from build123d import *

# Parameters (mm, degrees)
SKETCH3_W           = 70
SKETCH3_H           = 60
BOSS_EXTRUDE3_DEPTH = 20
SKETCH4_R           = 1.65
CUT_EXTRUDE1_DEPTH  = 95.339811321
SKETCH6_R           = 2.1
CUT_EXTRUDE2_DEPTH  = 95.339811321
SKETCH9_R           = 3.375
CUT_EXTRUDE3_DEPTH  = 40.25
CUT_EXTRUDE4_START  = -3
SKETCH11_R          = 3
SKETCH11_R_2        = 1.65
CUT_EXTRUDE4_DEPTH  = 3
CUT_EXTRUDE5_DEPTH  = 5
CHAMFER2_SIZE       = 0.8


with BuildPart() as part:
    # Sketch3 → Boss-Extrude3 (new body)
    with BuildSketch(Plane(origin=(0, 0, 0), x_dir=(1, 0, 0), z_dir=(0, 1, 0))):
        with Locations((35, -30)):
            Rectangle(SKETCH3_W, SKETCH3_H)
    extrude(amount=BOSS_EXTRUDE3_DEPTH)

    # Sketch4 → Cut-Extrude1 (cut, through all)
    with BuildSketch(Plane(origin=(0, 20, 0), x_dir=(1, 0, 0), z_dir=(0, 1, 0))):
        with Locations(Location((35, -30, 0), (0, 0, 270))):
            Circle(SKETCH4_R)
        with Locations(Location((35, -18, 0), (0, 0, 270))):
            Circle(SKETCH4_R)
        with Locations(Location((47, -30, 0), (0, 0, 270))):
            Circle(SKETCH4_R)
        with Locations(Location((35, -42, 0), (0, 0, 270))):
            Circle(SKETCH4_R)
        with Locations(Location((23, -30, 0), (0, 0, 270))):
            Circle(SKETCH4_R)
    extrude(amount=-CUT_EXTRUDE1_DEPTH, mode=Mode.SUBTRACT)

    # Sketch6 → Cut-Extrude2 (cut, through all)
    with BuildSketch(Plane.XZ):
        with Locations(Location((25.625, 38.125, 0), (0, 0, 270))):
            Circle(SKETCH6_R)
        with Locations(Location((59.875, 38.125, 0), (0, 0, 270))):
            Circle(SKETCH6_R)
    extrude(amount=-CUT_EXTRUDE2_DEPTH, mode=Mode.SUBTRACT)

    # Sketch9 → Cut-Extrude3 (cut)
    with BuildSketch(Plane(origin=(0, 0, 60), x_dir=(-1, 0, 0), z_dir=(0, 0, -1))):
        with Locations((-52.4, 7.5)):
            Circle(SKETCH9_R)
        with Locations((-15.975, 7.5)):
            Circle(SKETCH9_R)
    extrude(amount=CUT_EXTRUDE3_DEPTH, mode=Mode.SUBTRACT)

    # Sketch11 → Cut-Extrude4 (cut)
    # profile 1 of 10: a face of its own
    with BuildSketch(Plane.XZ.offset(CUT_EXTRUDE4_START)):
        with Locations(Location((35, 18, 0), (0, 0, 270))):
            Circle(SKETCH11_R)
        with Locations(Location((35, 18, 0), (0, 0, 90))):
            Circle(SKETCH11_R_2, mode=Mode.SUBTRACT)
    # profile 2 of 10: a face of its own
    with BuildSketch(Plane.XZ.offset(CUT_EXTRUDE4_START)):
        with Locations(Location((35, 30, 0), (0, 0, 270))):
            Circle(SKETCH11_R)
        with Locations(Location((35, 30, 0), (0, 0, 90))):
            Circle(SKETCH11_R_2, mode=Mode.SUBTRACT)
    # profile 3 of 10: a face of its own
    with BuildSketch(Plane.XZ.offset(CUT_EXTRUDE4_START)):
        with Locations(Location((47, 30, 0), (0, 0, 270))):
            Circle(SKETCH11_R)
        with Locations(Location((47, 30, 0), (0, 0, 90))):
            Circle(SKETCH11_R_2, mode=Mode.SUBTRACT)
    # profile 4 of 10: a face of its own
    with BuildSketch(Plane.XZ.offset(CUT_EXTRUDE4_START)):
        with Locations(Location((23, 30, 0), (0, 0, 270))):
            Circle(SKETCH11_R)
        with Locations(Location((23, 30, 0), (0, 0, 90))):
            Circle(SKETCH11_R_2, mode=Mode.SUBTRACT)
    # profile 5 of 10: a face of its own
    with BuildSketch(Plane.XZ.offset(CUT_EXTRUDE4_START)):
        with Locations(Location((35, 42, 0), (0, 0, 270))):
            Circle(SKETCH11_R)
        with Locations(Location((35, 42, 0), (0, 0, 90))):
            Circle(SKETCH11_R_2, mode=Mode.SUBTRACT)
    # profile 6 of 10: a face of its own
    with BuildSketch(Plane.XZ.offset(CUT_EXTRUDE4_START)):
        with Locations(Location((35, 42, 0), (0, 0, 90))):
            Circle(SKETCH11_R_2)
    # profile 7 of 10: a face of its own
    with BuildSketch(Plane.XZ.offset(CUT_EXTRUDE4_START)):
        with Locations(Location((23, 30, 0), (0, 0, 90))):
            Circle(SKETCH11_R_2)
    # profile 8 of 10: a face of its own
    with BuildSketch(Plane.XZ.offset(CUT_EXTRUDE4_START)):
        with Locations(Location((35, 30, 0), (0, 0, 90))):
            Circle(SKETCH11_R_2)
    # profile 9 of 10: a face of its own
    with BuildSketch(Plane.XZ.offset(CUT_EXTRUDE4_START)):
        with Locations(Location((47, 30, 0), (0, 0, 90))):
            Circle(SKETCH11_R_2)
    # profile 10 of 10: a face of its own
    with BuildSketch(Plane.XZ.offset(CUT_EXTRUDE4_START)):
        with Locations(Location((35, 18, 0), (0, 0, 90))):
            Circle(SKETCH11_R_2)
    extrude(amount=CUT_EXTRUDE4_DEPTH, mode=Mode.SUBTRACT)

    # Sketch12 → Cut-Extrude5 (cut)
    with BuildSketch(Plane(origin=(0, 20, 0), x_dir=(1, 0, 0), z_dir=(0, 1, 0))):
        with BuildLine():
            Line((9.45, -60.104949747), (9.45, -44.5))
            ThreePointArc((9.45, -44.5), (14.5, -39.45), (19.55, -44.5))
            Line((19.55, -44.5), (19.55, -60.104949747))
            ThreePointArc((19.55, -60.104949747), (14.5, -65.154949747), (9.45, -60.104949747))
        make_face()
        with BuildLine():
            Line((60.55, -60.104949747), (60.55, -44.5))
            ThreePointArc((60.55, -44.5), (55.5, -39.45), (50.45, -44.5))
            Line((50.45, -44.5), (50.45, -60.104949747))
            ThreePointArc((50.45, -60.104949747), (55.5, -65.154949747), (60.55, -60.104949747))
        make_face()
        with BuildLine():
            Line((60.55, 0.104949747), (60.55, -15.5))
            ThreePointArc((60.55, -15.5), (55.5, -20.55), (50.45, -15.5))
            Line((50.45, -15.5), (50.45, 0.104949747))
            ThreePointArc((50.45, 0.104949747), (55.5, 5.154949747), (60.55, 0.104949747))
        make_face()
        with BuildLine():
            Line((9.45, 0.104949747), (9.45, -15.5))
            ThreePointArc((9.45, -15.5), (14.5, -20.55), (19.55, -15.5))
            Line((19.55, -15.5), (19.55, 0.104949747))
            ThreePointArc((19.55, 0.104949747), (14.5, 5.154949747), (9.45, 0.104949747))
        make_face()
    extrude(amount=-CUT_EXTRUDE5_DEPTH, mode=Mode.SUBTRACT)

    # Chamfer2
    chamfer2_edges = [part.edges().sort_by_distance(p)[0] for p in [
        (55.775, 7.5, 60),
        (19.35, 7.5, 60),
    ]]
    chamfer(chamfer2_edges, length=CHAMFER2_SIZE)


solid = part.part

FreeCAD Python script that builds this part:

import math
import FreeCAD as App
import Part
import Sketcher

V = App.Vector
Q = App.Units.Quantity


def edges_at(feature, points):
    """Names of the edges that pass closest to the given points."""
    edges = feature.Shape.Edges
    near = lambda p: min(range(len(edges)), key=lambda i: edges[i].distToShape(Part.Vertex(*p))[0])
    return sorted({f"Edge{near(p) + 1}" for p in points})


def add_polygon(sketch, points):
    """Adds a closed chain of lines whose ends are joined by coincident constraints."""
    first, n = sketch.GeometryCount, len(points)
    for a, b in zip(points, points[1:] + points[:1]):
        sketch.addGeometry(Part.LineSegment(App.Vector(*a, 0), App.Vector(*b, 0)), False)
    for i in range(n):
        sketch.addConstraint(Sketcher.Constraint("Coincident", first + i, 2, first + (i + 1) % n, 1))

doc = App.newDocument("Part")
body = doc.addObject("PartDesign::Body", "Body")

# Sketch on XZ plane
sketch1 = doc.addObject("Sketcher::SketchObject", "Sketch")
body.addObject(sketch1)
sketch1.AttachmentSupport = (doc.XZ_Plane, [""])
sketch1.MapMode = "FlatFace"
add_polygon(sketch1, [(0, 0), (0, 60), (70, 60), (70, 0)])  # lines 0-3
sketch1.addConstraint([
    Sketcher.Constraint("Vertical", 0),
    Sketcher.Constraint("Horizontal", 1),
    Sketcher.Constraint("Vertical", 2),
    Sketcher.Constraint("Horizontal", 3),
    Sketcher.Constraint("Coincident", 3, 2, -1, 1),
    Sketcher.Constraint("DistanceX", 1, 1, 1, 2, Q("70 mm")),
    Sketcher.Constraint("DistanceY", 0, 1, 0, 2, Q("60 mm")),
])
pad1 = doc.addObject("PartDesign::Pad", "Pad")
body.addObject(pad1)
pad1.Profile = sketch1
pad1.Length = 20
pad1.Reversed = True

# Sketch on XZ plane
sketch2 = doc.addObject("Sketcher::SketchObject", "Sketch001")
body.addObject(sketch2)
sketch2.AttachmentSupport = (doc.XZ_Plane, [""])
sketch2.MapMode = "FlatFace"
sketch2.AttachmentOffset = App.Placement(V(0, 0, -20), App.Rotation())
sketch2.addGeometry([
    Part.Circle(V(35, 30, 0), V(0, 0, 1), 1.65),  # 0
    Part.Circle(V(35, 18, 0), V(0, 0, 1), 1.65),  # 1
    Part.Circle(V(47, 30, 0), V(0, 0, 1), 1.65),  # 2
    Part.Circle(V(35, 42, 0), V(0, 0, 1), 1.65),  # 3
    Part.Circle(V(23, 30, 0), V(0, 0, 1), 1.65),  # 4
], False)
sketch2.addConstraint([
    Sketcher.Constraint("Equal", 0, 1),
    Sketcher.Constraint("Equal", 1, 2),
    Sketcher.Constraint("Equal", 2, 3),
    Sketcher.Constraint("Equal", 3, 4),
    Sketcher.Constraint("Horizontal", 0, 3, 2, 3),
    Sketcher.Constraint("Horizontal", 2, 3, 4, 3),
    Sketcher.Constraint("Vertical", 0, 3, 1, 3),
    Sketcher.Constraint("Vertical", 1, 3, 3, 3),
    Sketcher.Constraint("Diameter", 0, Q("3.3 mm")),
    Sketcher.Constraint("DistanceX", -1, 1, 0, 3, Q("35 mm")),
    Sketcher.Constraint("DistanceY", -1, 1, 0, 3, Q("30 mm")),
    Sketcher.Constraint("DistanceY", -1, 1, 1, 3, Q("18 mm")),
    Sketcher.Constraint("DistanceX", -1, 1, 2, 3, Q("47 mm")),
    Sketcher.Constraint("DistanceY", -1, 1, 3, 3, Q("42 mm")),
    Sketcher.Constraint("DistanceX", -1, 1, 4, 3, Q("23 mm")),
])
pocket1 = doc.addObject("PartDesign::Pocket", "Pocket")
body.addObject(pocket1)
pocket1.Profile = sketch2
pocket1.Type = "ThroughAll"
pocket1.Reversed = True

# Sketch on XZ plane
sketch3 = doc.addObject("Sketcher::SketchObject", "Sketch002")
body.addObject(sketch3)
sketch3.AttachmentSupport = (doc.XZ_Plane, [""])
sketch3.MapMode = "FlatFace"
sketch3.addGeometry([
    Part.Circle(V(25.625, 38.125, 0), V(0, 0, 1), 2.1),
    Part.Circle(V(59.875, 38.125, 0), V(0, 0, 1), 2.1),
], False)
sketch3.addConstraint([
    Sketcher.Constraint("Equal", 0, 1),
    Sketcher.Constraint("Horizontal", 0, 3, 1, 3),
    Sketcher.Constraint("Diameter", 0, Q("4.2 mm")),
    Sketcher.Constraint("DistanceX", 0, 3, 1, 3, Q("34.25 mm")),
    Sketcher.Constraint("DistanceX", -1, 1, 0, 3, Q("25.625 mm")),
    Sketcher.Constraint("DistanceY", -1, 1, 0, 3, Q("38.125 mm")),
])
pocket2 = doc.addObject("PartDesign::Pocket", "Pocket001")
body.addObject(pocket2)
pocket2.Profile = sketch3
pocket2.Type = "ThroughAll"

# Sketch on XY plane
sketch4 = doc.addObject("Sketcher::SketchObject", "Sketch003")
body.addObject(sketch4)
sketch4.AttachmentSupport = (doc.XY_Plane, [""])
sketch4.MapMode = "FlatFace"
sketch4.AttachmentOffset = App.Placement(V(0, 0, 60), App.Rotation())
sketch4.addGeometry([
    Part.Circle(V(52.4, 7.5, 0), V(0, 0, 1), 3.375),
    Part.Circle(V(15.975, 7.5, 0), V(0, 0, 1), 3.375),
], False)
sketch4.addConstraint([
    Sketcher.Constraint("Equal", 0, 1),
    Sketcher.Constraint("Horizontal", 0, 3, 1, 3),
    Sketcher.Constraint("Diameter", 0, Q("6.75 mm")),
    Sketcher.Constraint("DistanceX", -1, 1, 0, 3, Q("52.4 mm")),
    Sketcher.Constraint("DistanceY", -1, 1, 0, 3, Q("7.5 mm")),
    Sketcher.Constraint("DistanceX", -1, 1, 1, 3, Q("15.975 mm")),
])
pocket3 = doc.addObject("PartDesign::Pocket", "Pocket002")
body.addObject(pocket3)
pocket3.Profile = sketch4
pocket3.Length = 40.25

# Sketch on XZ plane
sketch5 = doc.addObject("Sketcher::SketchObject", "Sketch004")
body.addObject(sketch5)
sketch5.AttachmentSupport = (doc.XZ_Plane, [""])
sketch5.MapMode = "FlatFace"
sketch5.AttachmentOffset = App.Placement(V(0, 0, -3), App.Rotation())
sketch5.addGeometry([
    Part.Circle(V(35, 18, 0), V(0, 0, 1), 3),  # 0
    Part.Circle(V(35, 30, 0), V(0, 0, 1), 3),  # 1
    Part.Circle(V(47, 30, 0), V(0, 0, 1), 3),  # 2
    Part.Circle(V(23, 30, 0), V(0, 0, 1), 3),  # 3
    Part.Circle(V(35, 42, 0), V(0, 0, 1), 3),  # 4
], False)
sketch5.addConstraint([
    Sketcher.Constraint("Equal", 0, 1),
    Sketcher.Constraint("Equal", 1, 2),
    Sketcher.Constraint("Equal", 2, 3),
    Sketcher.Constraint("Equal", 3, 4),
    Sketcher.Constraint("Horizontal", 1, 3, 2, 3),
    Sketcher.Constraint("Horizontal", 2, 3, 3, 3),
    Sketcher.Constraint("Vertical", 0, 3, 1, 3),
    Sketcher.Constraint("Vertical", 1, 3, 4, 3),
    Sketcher.Constraint("Diameter", 0, Q("6 mm")),
    Sketcher.Constraint("DistanceX", -1, 1, 0, 3, Q("35 mm")),
    Sketcher.Constraint("DistanceY", -1, 1, 0, 3, Q("18 mm")),
    Sketcher.Constraint("DistanceY", -1, 1, 1, 3, Q("30 mm")),
    Sketcher.Constraint("DistanceX", -1, 1, 2, 3, Q("47 mm")),
    Sketcher.Constraint("DistanceX", -1, 1, 3, 3, Q("23 mm")),
    Sketcher.Constraint("DistanceY", -1, 1, 4, 3, Q("42 mm")),
])
pocket4 = doc.addObject("PartDesign::Pocket", "Pocket003")
body.addObject(pocket4)
pocket4.Profile = sketch5
pocket4.Length = 3
pocket4.Reversed = True

# Sketch on XZ plane
sketch6 = doc.addObject("Sketcher::SketchObject", "Sketch005")
body.addObject(sketch6)
sketch6.AttachmentSupport = (doc.XZ_Plane, [""])
sketch6.MapMode = "FlatFace"
sketch6.AttachmentOffset = App.Placement(V(0, 0, -20), App.Rotation())
sketch6.addGeometry([
    Part.LineSegment(V(9.45, 44.5, 0), V(9.45, 60.10495, 0)),  # 0
    Part.ArcOfCircle(Part.Circle(V(14.5, 60.10495, 0), V(0, 0, 1), 5.05), math.radians(0), math.radians(180)),  # 1
    Part.LineSegment(V(19.55, 60.10495, 0), V(19.55, 44.5, 0)),  # 2
    Part.ArcOfCircle(Part.Circle(V(14.5, 44.5, 0), V(0, 0, 1), 5.05), math.radians(180), math.radians(360)),  # 3
    Part.LineSegment(V(60.55, 60.10495, 0), V(60.55, 44.5, 0)),  # 4
    Part.ArcOfCircle(Part.Circle(V(55.5, 44.5, 0), V(0, 0, 1), 5.05), math.radians(180), math.radians(360)),  # 5
    Part.LineSegment(V(50.45, 44.5, 0), V(50.45, 60.10495, 0)),  # 6
    Part.ArcOfCircle(Part.Circle(V(55.5, 60.10495, 0), V(0, 0, 1), 5.05), math.radians(0), math.radians(180)),  # 7
    Part.LineSegment(V(60.55, 15.5, 0), V(60.55, -0.10495, 0)),  # 8
    Part.ArcOfCircle(Part.Circle(V(55.5, -0.10495, 0), V(0, 0, 1), 5.05), math.radians(180), math.radians(360)),  # 9
    Part.LineSegment(V(50.45, -0.10495, 0), V(50.45, 15.5, 0)),  # 10
    Part.ArcOfCircle(Part.Circle(V(55.5, 15.5, 0), V(0, 0, 1), 5.05), math.radians(0), math.radians(180)),  # 11
    Part.LineSegment(V(9.45, -0.10495, 0), V(9.45, 15.5, 0)),  # 12
    Part.ArcOfCircle(Part.Circle(V(14.5, 15.5, 0), V(0, 0, 1), 5.05), math.radians(0), math.radians(180)),  # 13
    Part.LineSegment(V(19.55, 15.5, 0), V(19.55, -0.10495, 0)),  # 14
    Part.ArcOfCircle(Part.Circle(V(14.5, -0.10495, 0), V(0, 0, 1), 5.05), math.radians(180), math.radians(360)),  # 15
], False)
sketch6.addConstraint([
    Sketcher.Constraint("Tangent", 0, 2, 1, 2),
    Sketcher.Constraint("Tangent", 1, 1, 2, 1),
    Sketcher.Constraint("Tangent", 2, 2, 3, 2),
    Sketcher.Constraint("Tangent", 3, 1, 0, 1),
    Sketcher.Constraint("Tangent", 4, 2, 5, 2),
    Sketcher.Constraint("Tangent", 5, 1, 6, 1),
    Sketcher.Constraint("Tangent", 6, 2, 7, 2),
    Sketcher.Constraint("Tangent", 7, 1, 4, 1),
    Sketcher.Constraint("Tangent", 8, 2, 9, 2),
    Sketcher.Constraint("Tangent", 9, 1, 10, 1),
    Sketcher.Constraint("Tangent", 10, 2, 11, 2),
    Sketcher.Constraint("Tangent", 11, 1, 8, 1),
    Sketcher.Constraint("Tangent", 12, 2, 13, 2),
    Sketcher.Constraint("Tangent", 13, 1, 14, 1),
    Sketcher.Constraint("Tangent", 14, 2, 15, 2),
    Sketcher.Constraint("Tangent", 15, 1, 12, 1),
    Sketcher.Constraint("Vertical", 0),
    Sketcher.Constraint("Vertical", 2),
    Sketcher.Constraint("Vertical", 4),
    Sketcher.Constraint("Vertical", 6),
    Sketcher.Constraint("Vertical", 8),
    Sketcher.Constraint("Vertical", 10),
    Sketcher.Constraint("Vertical", 12),
    Sketcher.Constraint("Vertical", 14),
    Sketcher.Constraint("Equal", 3, 5),
    Sketcher.Constraint("Equal", 7, 9),
    Sketcher.Constraint("Equal", 11, 13),
    Sketcher.Constraint("Horizontal", 3, 3, 5, 3),
    Sketcher.Constraint("Horizontal", 1, 3, 7, 3),
    Sketcher.Constraint("Horizontal", 11, 3, 13, 3),
    Sketcher.Constraint("Horizontal", 9, 3, 15, 3),
    Sketcher.Constraint("Vertical", 7, 3, 9, 3),
    Sketcher.Constraint("Vertical", 3, 3, 13, 3),
    Sketcher.Constraint("Equal", 6, 8),
    Sketcher.Constraint("Radius", 1, Q("5.05 mm")),
    Sketcher.Constraint("DistanceX", 3, 3, 5, 3, Q("41 mm")),
    Sketcher.Constraint("DistanceY", 11, 3, 5, 3, Q("29 mm")),
    Sketcher.Constraint("DistanceX", -1, 1, 1, 3, Q("14.5 mm")),
    Sketcher.Constraint("DistanceY", -1, 1, 3, 3, Q("44.5 mm")),
    Sketcher.Constraint("DistanceY", 0, 1, 0, 2, Q("15.60495 mm")),
])
pocket5 = doc.addObject("PartDesign::Pocket", "Pocket004")
body.addObject(pocket5)
pocket5.Profile = sketch6
pocket5.Length = 5
pocket5.Reversed = True
doc.recompute()

chamfer = doc.addObject("PartDesign::Chamfer", "Chamfer")
body.addObject(chamfer)
chamfer.Base = (pocket5, edges_at(pocket5, [(55.775, 7.5, 60), (19.35, 7.5, 60)]))
chamfer.Size = 0.8

doc.recompute()
